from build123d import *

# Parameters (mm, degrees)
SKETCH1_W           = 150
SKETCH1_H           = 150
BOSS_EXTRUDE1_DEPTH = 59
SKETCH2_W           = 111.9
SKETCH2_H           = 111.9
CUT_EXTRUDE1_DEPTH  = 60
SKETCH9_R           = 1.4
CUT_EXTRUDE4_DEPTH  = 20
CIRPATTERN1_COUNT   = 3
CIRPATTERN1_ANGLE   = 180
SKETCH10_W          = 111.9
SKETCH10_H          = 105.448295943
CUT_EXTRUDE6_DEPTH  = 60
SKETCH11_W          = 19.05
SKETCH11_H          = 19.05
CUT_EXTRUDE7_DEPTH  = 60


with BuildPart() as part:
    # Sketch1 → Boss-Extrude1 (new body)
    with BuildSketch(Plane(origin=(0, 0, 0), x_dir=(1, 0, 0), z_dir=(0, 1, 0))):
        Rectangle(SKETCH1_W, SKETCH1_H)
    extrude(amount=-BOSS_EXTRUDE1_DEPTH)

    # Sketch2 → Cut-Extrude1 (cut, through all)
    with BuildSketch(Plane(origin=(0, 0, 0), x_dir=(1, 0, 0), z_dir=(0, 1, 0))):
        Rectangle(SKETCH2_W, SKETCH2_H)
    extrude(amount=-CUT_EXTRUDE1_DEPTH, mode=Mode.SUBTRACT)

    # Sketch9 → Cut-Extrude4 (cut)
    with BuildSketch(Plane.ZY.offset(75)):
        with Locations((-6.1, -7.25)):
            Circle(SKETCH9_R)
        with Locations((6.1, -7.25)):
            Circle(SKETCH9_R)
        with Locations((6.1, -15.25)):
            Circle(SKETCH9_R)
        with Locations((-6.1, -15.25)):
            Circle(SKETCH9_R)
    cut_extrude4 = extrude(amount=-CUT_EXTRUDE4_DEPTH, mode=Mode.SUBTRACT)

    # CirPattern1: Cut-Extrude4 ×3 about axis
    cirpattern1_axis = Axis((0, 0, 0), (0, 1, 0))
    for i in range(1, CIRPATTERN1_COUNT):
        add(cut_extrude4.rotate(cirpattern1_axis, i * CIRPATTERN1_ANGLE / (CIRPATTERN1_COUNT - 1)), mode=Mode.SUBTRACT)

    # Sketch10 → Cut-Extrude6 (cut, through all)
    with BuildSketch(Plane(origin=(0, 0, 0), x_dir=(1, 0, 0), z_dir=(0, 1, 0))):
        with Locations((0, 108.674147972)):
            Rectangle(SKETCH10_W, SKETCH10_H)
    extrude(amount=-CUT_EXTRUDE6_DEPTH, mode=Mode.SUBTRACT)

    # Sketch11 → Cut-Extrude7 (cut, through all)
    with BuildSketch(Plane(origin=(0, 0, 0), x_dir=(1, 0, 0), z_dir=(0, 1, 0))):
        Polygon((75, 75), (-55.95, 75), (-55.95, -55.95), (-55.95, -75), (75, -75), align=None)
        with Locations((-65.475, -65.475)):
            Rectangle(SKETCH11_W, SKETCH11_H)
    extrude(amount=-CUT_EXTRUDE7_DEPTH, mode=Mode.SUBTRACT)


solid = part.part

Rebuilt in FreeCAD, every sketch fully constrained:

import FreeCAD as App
import Part
import Sketcher

doc = App.newDocument("Part")
body = doc.addObject("PartDesign::Body", "Body")

sketch1 = body.newObject("Sketcher::SketchObject", "Sketch")
sketch1.AttachmentSupport = (doc.getObject("XZ_Plane"), [""])
sketch1.MapMode = "FlatFace"
sketch1.addGeometry([
    Part.LineSegment(App.Vector(-75, -75, 0), App.Vector(-75, 75, 0)),
    Part.LineSegment(App.Vector(-75, 75, 0), App.Vector(75, 75, 0)),
    Part.LineSegment(App.Vector(75, 75, 0), App.Vector(75, -75, 0)),
    Part.LineSegment(App.Vector(75, -75, 0), App.Vector(-75, -75, 0)),
], False)
sketch1.addConstraint([
    Sketcher.Constraint("Coincident", 0, 2, 1, 1),
    Sketcher.Constraint("Coincident", 1, 2, 2, 1),
    Sketcher.Constraint("Coincident", 2, 2, 3, 1),
    Sketcher.Constraint("Coincident", 3, 2, 0, 1),
    Sketcher.Constraint("Vertical", 0),
    Sketcher.Constraint("Horizontal", 1),
    Sketcher.Constraint("Vertical", 2),
    Sketcher.Constraint("Horizontal", 3),
    Sketcher.Constraint("Symmetric", 0, 2, 2, 2, -1, 1),
    Sketcher.Constraint("Equal", 3, 0),
    Sketcher.Constraint("DistanceX", 1, 1, 1, 2, 150.0),
])
pad1 = body.newObject("PartDesign::Pad", "Pad")
pad1.Profile = sketch1
pad1.Length = 59

sketch2 = body.newObject("Sketcher::SketchObject", "Sketch001")
sketch2.AttachmentSupport = (doc.getObject("XZ_Plane"), [""])
sketch2.MapMode = "FlatFace"
sketch2.addGeometry([
    Part.LineSegment(App.Vector(-56, -56, 0), App.Vector(-56, 56, 0)),
    Part.LineSegment(App.Vector(-56, 56, 0), App.Vector(56, 56, 0)),
    Part.LineSegment(App.Vector(56, 56, 0), App.Vector(56, -56, 0)),
    Part.LineSegment(App.Vector(56, -56, 0), App.Vector(-56, -56, 0)),
], False)
sketch2.addConstraint([
    Sketcher.Constraint("Coincident", 0, 2, 1, 1),
    Sketcher.Constraint("Coincident", 1, 2, 2, 1),
    Sketcher.Constraint("Coincident", 2, 2, 3, 1),
    Sketcher.Constraint("Coincident", 3, 2, 0, 1),
    Sketcher.Constraint("Vertical", 0),
    Sketcher.Constraint("Horizontal", 1),
    Sketcher.Constraint("Vertical", 2),
    Sketcher.Constraint("Horizontal", 3),
    Sketcher.Constraint("Symmetric", 0, 2, 2, 2, -1, 1),
    Sketcher.Constraint("Equal", 3, 0),
    Sketcher.Constraint("DistanceX", 1, 1, 1, 2, 111.9),
])
pocket1 = body.newObject("PartDesign::Pocket", "Pocket")
pocket1.Profile = sketch2
pocket1.Type = "ThroughAll"
pocket1.Reversed = True

sketch3 = body.newObject("Sketcher::SketchObject", "Sketch002")
sketch3.AttachmentSupport = (doc.getObject("YZ_Plane"), [""])
sketch3.MapMode = "FlatFace"
sketch3.AttachmentOffset = App.Placement(App.Vector(0, 0, -75), App.Rotation())
sketch3.addGeometry([
    Part.Circle(App.Vector(-7.2, -6.1, 0), App.Vector(0, 0, 1), 1.4),
    Part.Circle(App.Vector(-7.2, 6.1, 0), App.Vector(0, 0, 1), 1.4),
    Part.Circle(App.Vector(-15.2, 6.1, 0), App.Vector(0, 0, 1), 1.4),
    Part.Circle(App.Vector(-15.2, -6.1, 0), App.Vector(0, 0, 1), 1.4),
], False)
sketch3.addConstraint([
    Sketcher.Constraint("Equal", 0, 1),
    Sketcher.Constraint("Equal", 1, 2),
    Sketcher.Constraint("Equal", 2, 3),
    Sketcher.Constraint("Symmetric", 0, 3, 1, 3, -1),
    Sketcher.Constraint("Symmetric", 2, 3, 3, 3, -1),
    Sketcher.Constraint("Horizontal", 1, 3, 2, 3),
    Sketcher.Constraint("Diameter", 0, 2.8),
    Sketcher.Constraint("DistanceX", 2, 3, 1, 3, 8.0),
    Sketcher.Constraint("DistanceY", 0, 3, -1, 1, 6.1),
    Sketcher.Constraint("DistanceX", 0, 3, -1, 1, 7.25),
])
pocket2 = body.newObject("PartDesign::Pocket", "Pocket001")
pocket2.Profile = sketch3
pocket2.Length = 20
pocket2.Reversed = True
doc.recompute()

polarpattern = body.newObject("PartDesign::PolarPattern", "PolarPattern")
polarpattern.Originals = [pocket2]
polarpattern.Axis = (doc.getObject("Y_Axis"), [""])
polarpattern.Angle = 180
polarpattern.Occurrences = 3
body.Tip = polarpattern

sketch4 = body.newObject("Sketcher::SketchObject", "Sketch003")
sketch4.AttachmentSupport = (doc.getObject("XZ_Plane"), [""])
sketch4.MapMode = "FlatFace"
sketch4.addGeometry([
    Part.LineSegment(App.Vector(-56, -161, 0), App.Vector(-56, -56, 0)),
    Part.LineSegment(App.Vector(-56, -56, 0), App.Vector(56, -56, 0)),
    Part.LineSegment(App.Vector(56, -56, 0), App.Vector(56, -161, 0)),
    Part.LineSegment(App.Vector(56, -161, 0), App.Vector(-56, -161, 0)),
], False)
sketch4.addConstraint([
    Sketcher.Constraint("Coincident", 0, 2, 1, 1),
    Sketcher.Constraint("Coincident", 1, 2, 2, 1),
    Sketcher.Constraint("Coincident", 2, 2, 3, 1),
    Sketcher.Constraint("Coincident", 3, 2, 0, 1),
    Sketcher.Constraint("Vertical", 0),
    Sketcher.Constraint("Horizontal", 1),
    Sketcher.Constraint("Vertical", 2),
    Sketcher.Constraint("Horizontal", 3),
    Sketcher.Constraint("DistanceX", 1, 1, 1, 2, 111.9),
    Sketcher.Constraint("DistanceX", 0, 2, -1, 1, 55.95),
    Sketcher.Constraint("DistanceY", 0, 2, -1, 1, 55.95),
    Sketcher.Constraint("DistanceY", 0, 1, 0, 2, 105.448296),
])
pocket3 = body.newObject("PartDesign::Pocket", "Pocket002")
pocket3.Profile = sketch4
pocket3.Type = "ThroughAll"
pocket3.Reversed = True

sketch5 = body.newObject("Sketcher::SketchObject", "Sketch004")
sketch5.AttachmentSupport = (doc.getObject("XZ_Plane"), [""])
sketch5.MapMode = "FlatFace"
sketch5.addGeometry([
    Part.LineSegment(App.Vector(75, -75, 0), App.Vector(-56, -75, 0)),
    Part.LineSegment(App.Vector(-56, -75, 0), App.Vector(-56, 56, 0)),
    Part.LineSegment(App.Vector(-56, 56, 0), App.Vector(-75, 56, 0)),
    Part.LineSegment(App.Vector(-75, 56, 0), App.Vector(-75, 75, 0)),
    Part.LineSegment(App.Vector(-75, 75, 0), App.Vector(75, 75, 0)),
    Part.LineSegment(App.Vector(75, 75, 0), App.Vector(75, -75, 0)),
], False)
sketch5.addConstraint([
    Sketcher.Constraint("Coincident", 0, 2, 1, 1),
    Sketcher.Constraint("Coincident", 1, 2, 2, 1),
    Sketcher.Constraint("Coincident", 2, 2, 3, 1),
    Sketcher.Constraint("Coincident", 3, 2, 4, 1),
    Sketcher.Constraint("Coincident", 4, 2, 5, 1),
    Sketcher.Constraint("Coincident", 5, 2, 0, 1),
    Sketcher.Constraint("Horizontal", 0),
    Sketcher.Constraint("Vertical", 1),
    Sketcher.Constraint("Horizontal", 2),
    Sketcher.Constraint("Vertical", 3),
    Sketcher.Constraint("Horizontal", 4),
    Sketcher.Constraint("Vertical", 5),
    Sketcher.Constraint("Symmetric", 3, 2, 5, 2, -1, 1),
    Sketcher.Constraint("Equal", 0, 1),
    Sketcher.Constraint("Equal", 2, 3),
    Sketcher.Constraint("DistanceX", 4, 1, 4, 2, 150.0),
    Sketcher.Constraint("DistanceX", 0, 2, 0, 1, 130.95),
])
pocket4 = body.newObject("PartDesign::Pocket", "Pocket003")
pocket4.Profile = sketch5
pocket4.Type = "ThroughAll"
pocket4.Reversed = True

doc.recompute()
